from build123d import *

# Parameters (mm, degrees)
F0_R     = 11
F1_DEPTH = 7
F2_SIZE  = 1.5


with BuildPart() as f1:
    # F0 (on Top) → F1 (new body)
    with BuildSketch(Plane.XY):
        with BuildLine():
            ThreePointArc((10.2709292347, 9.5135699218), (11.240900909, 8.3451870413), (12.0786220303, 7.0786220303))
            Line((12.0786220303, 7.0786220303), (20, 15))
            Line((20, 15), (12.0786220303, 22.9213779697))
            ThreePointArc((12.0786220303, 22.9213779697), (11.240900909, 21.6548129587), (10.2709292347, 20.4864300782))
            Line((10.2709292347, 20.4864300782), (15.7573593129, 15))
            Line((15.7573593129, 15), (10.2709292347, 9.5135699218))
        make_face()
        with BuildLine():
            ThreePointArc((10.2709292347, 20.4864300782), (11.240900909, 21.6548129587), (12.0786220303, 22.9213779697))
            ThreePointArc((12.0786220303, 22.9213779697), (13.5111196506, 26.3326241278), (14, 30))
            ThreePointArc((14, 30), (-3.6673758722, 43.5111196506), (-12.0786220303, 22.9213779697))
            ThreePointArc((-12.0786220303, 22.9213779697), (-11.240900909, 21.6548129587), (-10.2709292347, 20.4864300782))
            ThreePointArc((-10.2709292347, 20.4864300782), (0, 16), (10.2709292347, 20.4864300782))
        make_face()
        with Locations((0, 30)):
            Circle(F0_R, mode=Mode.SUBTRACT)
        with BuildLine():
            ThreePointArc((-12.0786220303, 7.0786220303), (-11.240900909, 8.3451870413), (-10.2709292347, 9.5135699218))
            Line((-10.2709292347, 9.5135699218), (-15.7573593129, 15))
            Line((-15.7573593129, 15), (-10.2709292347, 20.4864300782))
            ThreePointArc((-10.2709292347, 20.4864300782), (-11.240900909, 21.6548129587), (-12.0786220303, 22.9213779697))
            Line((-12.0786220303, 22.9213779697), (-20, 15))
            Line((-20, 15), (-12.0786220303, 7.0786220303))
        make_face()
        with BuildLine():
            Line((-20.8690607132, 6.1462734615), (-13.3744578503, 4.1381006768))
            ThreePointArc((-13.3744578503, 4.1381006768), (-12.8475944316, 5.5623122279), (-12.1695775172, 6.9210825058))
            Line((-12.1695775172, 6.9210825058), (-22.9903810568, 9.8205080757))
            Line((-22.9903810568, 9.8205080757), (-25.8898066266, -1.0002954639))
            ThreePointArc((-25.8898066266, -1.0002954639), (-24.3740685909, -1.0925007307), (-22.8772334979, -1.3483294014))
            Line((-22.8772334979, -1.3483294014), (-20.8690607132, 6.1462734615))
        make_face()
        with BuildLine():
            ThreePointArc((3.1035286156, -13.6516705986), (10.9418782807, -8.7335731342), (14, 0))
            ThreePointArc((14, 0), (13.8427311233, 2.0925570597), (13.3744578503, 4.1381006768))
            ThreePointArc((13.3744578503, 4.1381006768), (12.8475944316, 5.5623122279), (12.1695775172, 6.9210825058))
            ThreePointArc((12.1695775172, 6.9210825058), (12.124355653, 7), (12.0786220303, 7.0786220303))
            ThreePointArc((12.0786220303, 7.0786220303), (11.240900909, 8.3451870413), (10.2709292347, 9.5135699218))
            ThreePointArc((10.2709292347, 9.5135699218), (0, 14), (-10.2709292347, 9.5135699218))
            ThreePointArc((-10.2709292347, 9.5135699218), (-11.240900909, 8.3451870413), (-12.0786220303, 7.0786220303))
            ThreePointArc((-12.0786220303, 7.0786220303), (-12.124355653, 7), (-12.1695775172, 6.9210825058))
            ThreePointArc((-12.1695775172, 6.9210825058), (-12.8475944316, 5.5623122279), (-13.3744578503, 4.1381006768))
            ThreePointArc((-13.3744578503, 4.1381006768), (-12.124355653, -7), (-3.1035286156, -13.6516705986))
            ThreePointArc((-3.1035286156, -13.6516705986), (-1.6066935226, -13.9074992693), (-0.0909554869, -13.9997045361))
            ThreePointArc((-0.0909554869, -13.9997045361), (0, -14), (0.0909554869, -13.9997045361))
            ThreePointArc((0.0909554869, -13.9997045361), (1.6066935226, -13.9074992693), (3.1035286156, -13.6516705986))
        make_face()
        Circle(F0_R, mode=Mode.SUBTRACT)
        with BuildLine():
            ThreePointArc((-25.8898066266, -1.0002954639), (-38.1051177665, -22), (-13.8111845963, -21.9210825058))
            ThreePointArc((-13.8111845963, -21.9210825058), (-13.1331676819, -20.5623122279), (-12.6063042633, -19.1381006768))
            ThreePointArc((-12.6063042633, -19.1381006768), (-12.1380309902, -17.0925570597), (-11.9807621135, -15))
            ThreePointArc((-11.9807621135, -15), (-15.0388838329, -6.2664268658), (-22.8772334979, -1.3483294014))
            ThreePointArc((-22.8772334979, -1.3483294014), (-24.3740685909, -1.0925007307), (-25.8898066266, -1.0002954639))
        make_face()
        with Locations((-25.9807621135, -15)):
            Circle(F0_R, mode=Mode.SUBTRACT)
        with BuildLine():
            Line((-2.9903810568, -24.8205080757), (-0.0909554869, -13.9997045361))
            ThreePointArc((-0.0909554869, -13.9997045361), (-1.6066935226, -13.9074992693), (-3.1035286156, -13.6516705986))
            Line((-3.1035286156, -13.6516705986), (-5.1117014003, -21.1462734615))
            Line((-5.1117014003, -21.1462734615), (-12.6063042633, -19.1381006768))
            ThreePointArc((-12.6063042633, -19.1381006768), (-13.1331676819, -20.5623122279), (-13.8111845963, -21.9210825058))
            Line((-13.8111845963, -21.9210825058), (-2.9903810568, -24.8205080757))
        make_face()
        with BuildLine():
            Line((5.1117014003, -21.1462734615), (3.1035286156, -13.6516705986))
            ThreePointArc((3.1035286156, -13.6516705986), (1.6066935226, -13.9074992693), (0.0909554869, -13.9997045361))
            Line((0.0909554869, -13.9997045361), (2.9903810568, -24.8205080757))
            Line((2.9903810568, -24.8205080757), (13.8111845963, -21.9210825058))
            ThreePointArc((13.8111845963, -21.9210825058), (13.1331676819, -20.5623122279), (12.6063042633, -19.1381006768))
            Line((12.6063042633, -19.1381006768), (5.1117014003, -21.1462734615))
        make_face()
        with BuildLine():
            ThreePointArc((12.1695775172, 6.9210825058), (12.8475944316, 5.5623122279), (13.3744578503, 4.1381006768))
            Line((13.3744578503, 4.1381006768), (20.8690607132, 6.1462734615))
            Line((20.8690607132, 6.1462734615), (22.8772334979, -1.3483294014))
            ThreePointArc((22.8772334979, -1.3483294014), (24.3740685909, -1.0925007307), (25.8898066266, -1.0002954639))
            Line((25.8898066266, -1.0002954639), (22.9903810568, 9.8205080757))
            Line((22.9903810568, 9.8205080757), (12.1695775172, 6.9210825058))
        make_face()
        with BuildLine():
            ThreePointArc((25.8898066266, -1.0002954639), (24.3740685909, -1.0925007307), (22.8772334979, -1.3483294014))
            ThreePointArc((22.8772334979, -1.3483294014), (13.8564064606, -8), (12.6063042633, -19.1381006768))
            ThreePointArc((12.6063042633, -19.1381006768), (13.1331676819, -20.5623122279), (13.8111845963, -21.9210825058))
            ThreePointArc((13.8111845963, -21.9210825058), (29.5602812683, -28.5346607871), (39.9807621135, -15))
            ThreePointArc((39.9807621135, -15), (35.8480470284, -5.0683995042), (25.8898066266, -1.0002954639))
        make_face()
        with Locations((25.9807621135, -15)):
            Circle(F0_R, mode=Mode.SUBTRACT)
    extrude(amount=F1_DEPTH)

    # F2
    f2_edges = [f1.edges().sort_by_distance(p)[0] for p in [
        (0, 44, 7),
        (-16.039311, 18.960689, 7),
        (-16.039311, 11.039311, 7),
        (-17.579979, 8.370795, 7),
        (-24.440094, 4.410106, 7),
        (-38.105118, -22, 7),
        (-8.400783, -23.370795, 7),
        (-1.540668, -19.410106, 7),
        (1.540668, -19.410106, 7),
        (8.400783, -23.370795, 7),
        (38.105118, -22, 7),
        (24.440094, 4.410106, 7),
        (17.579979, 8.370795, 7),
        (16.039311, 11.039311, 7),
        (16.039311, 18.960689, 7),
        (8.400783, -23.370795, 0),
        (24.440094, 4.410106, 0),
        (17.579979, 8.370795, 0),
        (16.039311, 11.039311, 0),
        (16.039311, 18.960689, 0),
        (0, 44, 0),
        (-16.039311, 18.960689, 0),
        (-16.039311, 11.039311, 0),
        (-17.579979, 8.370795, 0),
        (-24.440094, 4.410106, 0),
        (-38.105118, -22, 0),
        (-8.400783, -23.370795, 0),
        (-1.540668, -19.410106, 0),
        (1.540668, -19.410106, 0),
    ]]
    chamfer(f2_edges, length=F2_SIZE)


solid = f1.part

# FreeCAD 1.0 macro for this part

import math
import FreeCAD as App
import Part
import Sketcher
Q = App.Units.Quantity


def edges_at(feature, points):
    """Names of the edges that pass closest to the given points."""
    edges = feature.Shape.Edges
    near = lambda p: min(range(len(edges)), key=lambda i: edges[i].distToShape(Part.Vertex(*p))[0])
    return sorted({f"Edge{near(p) + 1}" for p in points})

doc = App.newDocument("Part")
params = doc.addObject("Spreadsheet::Sheet", "Params")
for row, (alias, value) in enumerate([
    ("sketch1_diameter", "22 mm"),
    ("sketch1_radius", "14 mm"),
    ("pad1_length", "7 mm"),
    ("chamfer_size", "1.5 mm"),
], start=1):
    params.set(f"A{row}", alias)
    params.set(f"B{row}", "=" + value)
    params.setAlias(f"B{row}", alias)

body = doc.addObject("PartDesign::Body", "Body")

# Sketch on XY plane
sketch1 = body.newObject("Sketcher::SketchObject", "Sketch")
sketch1.AttachmentSupport = (doc.getObject("XY_Plane"), [""])
sketch1.MapMode = "FlatFace"
sketch1.addGeometry([
    Part.LineSegment(App.Vector(12.078622, 7.078622, 0), App.Vector(20, 15, 0)),  # 0
    Part.LineSegment(App.Vector(20, 15, 0), App.Vector(12.078622, 22.921378, 0)),  # 1
    Part.ArcOfCircle(Part.Circle(App.Vector(0, 30, 0), App.Vector(0, 0, 1), 14), math.radians(-30.372243), math.radians(0)),  # 2
    Part.ArcOfCircle(Part.Circle(App.Vector(0, 30, 0), App.Vector(0, 0, 1), 14), math.radians(0), math.radians(210.372243)),  # 3
    Part.LineSegment(App.Vector(-12.078622, 22.921378, 0), App.Vector(-20, 15, 0)),  # 4
    Part.LineSegment(App.Vector(-20, 15, 0), App.Vector(-12.078622, 7.078622, 0)),  # 5
    Part.ArcOfCircle(Part.Circle(App.Vector(-0.000002, 0.000001, 0), App.Vector(0, 0, 1), 13.999998), math.radians(149.627757), math.radians(150.372243)),  # 6
    Part.LineSegment(App.Vector(-12.169578, 6.921083, 0), App.Vector(-22.990381, 9.820508, 0)),  # 7
    Part.LineSegment(App.Vector(-22.990381, 9.820508, 0), App.Vector(-25.889807, -1.000295, 0)),  # 8
    Part.ArcOfCircle(Part.Circle(App.Vector(-25.980762, -15, 0), App.Vector(0, 0, 1), 14), math.radians(89.627757), math.radians(330.372243)),  # 9
    Part.LineSegment(App.Vector(-13.811185, -21.921083, 0), App.Vector(-2.990381, -24.820508, 0)),  # 10
    Part.LineSegment(App.Vector(-2.990381, -24.820508, 0), App.Vector(-0.090955, -13.999705, 0)),  # 11
    Part.ArcOfCircle(Part.Circle(App.Vector(0, -0.000002, 0), App.Vector(0, 0, 1), 13.999998), math.radians(-90.372243), math.radians(-89.627757)),  # 12
    Part.LineSegment(App.Vector(0.090955, -13.999705, 0), App.Vector(2.990381, -24.820508, 0)),  # 13
    Part.LineSegment(App.Vector(2.990381, -24.820508, 0), App.Vector(13.811185, -21.921083, 0)),  # 14
    Part.ArcOfCircle(Part.Circle(App.Vector(25.980762, -15, 0), App.Vector(0, 0, 1), 14), math.radians(-150.372243), math.radians(0)),  # 15
    Part.ArcOfCircle(Part.Circle(App.Vector(25.980762, -15, 0), App.Vector(0, 0, 1), 14), math.radians(0), math.radians(90.372243)),  # 16
    Part.LineSegment(App.Vector(25.889807, -1.000295, 0), App.Vector(22.990381, 9.820508, 0)),  # 17
    Part.LineSegment(App.Vector(22.990381, 9.820508, 0), App.Vector(12.169578, 6.921083, 0)),  # 18
    Part.ArcOfCircle(Part.Circle(App.Vector(0.000002, 0.000001, 0), App.Vector(0, 0, 1), 13.999998), math.radians(29.627757), math.radians(30.372243)),  # 19
    Part.Circle(App.Vector(-25.980762, -15, 0), App.Vector(0, 0, 1), 11),  # 20
    Part.ArcOfCircle(Part.Circle(App.Vector(0, 0, 0), App.Vector(0, 0, 1), 14), math.radians(162.807763), math.radians(257.192237)),  # 21
    Part.LineSegment(App.Vector(-3.103529, -13.651671, 0), App.Vector(-5.111701, -21.146273, 0)),  # 22
    Part.LineSegment(App.Vector(-5.111701, -21.146273, 0), App.Vector(-12.606304, -19.138101, 0)),  # 23
    Part.ArcOfCircle(Part.Circle(App.Vector(-25.980762, -15, 0), App.Vector(0, 0, 1), 14), math.radians(-17.192237), math.radians(0)),  # 24
    Part.ArcOfCircle(Part.Circle(App.Vector(-25.980762, -15, 0), App.Vector(0, 0, 1), 14), math.radians(0), math.radians(77.192237)),  # 25
    Part.LineSegment(App.Vector(-22.877233, -1.348329, 0), App.Vector(-20.869061, 6.146273, 0)),  # 26
    Part.LineSegment(App.Vector(-20.869061, 6.146273, 0), App.Vector(-13.374458, 4.138101, 0)),  # 27
    Part.Circle(App.Vector(25.980762, -15, 0), App.Vector(0, 0, 1), 11),  # 28
    Part.LineSegment(App.Vector(12.606304, -19.138101, 0), App.Vector(5.111701, -21.146273, 0)),  # 29
    Part.LineSegment(App.Vector(5.111701, -21.146273, 0), App.Vector(3.103529, -13.651671, 0)),  # 30
    Part.ArcOfCircle(Part.Circle(App.Vector(0, 0, 0), App.Vector(0, 0, 1), 14), math.radians(-77.192237), math.radians(0)),  # 31
    Part.ArcOfCircle(Part.Circle(App.Vector(0, 0, 0), App.Vector(0, 0, 1), 14), math.radians(0), math.radians(17.192237)),  # 32
    Part.LineSegment(App.Vector(13.374458, 4.138101, 0), App.Vector(20.869061, 6.146273, 0)),  # 33
    Part.LineSegment(App.Vector(20.869061, 6.146273, 0), App.Vector(22.877233, -1.348329, 0)),  # 34
    Part.ArcOfCircle(Part.Circle(App.Vector(25.980762, -15, 0), App.Vector(0, 0, 1), 14), math.radians(102.807763), math.radians(197.192237)),  # 35
    Part.Circle(App.Vector(0, 0, 0), App.Vector(0, 0, 1), 11),  # 36
    Part.LineSegment(App.Vector(-10.270929, 9.51357, 0), App.Vector(-15.757359, 15, 0)),  # 37
    Part.LineSegment(App.Vector(-15.757359, 15, 0), App.Vector(-10.270929, 20.48643, 0)),  # 38
    Part.ArcOfCircle(Part.Circle(App.Vector(0, 30, 0), App.Vector(0, 0, 1), 14), math.radians(-137.192237), math.radians(-42.807763)),  # 39
    Part.LineSegment(App.Vector(10.270929, 20.48643, 0), App.Vector(15.757359, 15, 0)),  # 40
    Part.LineSegment(App.Vector(15.757359, 15, 0), App.Vector(10.270929, 9.51357, 0)),  # 41
    Part.ArcOfCircle(Part.Circle(App.Vector(0, 0, 0), App.Vector(0, 0, 1), 14), math.radians(42.807763), math.radians(137.192237)),  # 42
    Part.Circle(App.Vector(0, 30, 0), App.Vector(0, 0, 1), 11),  # 43
], False)
sketch1.addConstraint([
    Sketcher.Constraint("Coincident", 0, 2, 1, 1),
    Sketcher.Constraint("Coincident", 1, 2, 2, 1),
    Sketcher.Constraint("Tangent", 2, 2, 3, 1),
    Sketcher.Constraint("Coincident", 3, 2, 4, 1),
    Sketcher.Constraint("Coincident", 4, 2, 5, 1),
    Sketcher.Constraint("Coincident", 5, 2, 6, 1),
    Sketcher.Constraint("Coincident", 6, 2, 7, 1),
    Sketcher.Constraint("Coincident", 7, 2, 8, 1),
    Sketcher.Constraint("Coincident", 8, 2, 9, 1),
    Sketcher.Constraint("Coincident", 9, 2, 10, 1),
    Sketcher.Constraint("Coincident", 10, 2, 11, 1),
    Sketcher.Constraint("Coincident", 11, 2, 12, 1),
    Sketcher.Constraint("Coincident", 12, 2, 13, 1),
    Sketcher.Constraint("Coincident", 13, 2, 14, 1),
    Sketcher.Constraint("Coincident", 14, 2, 15, 1),
    Sketcher.Constraint("Tangent", 15, 2, 16, 1),
    Sketcher.Constraint("Coincident", 16, 2, 17, 1),
    Sketcher.Constraint("Coincident", 17, 2, 18, 1),
    Sketcher.Constraint("Coincident", 18, 2, 19, 1),
    Sketcher.Constraint("Coincident", 19, 2, 0, 1),
    Sketcher.Constraint("Coincident", 21, 2, 22, 1),
    Sketcher.Constraint("Coincident", 22, 2, 23, 1),
    Sketcher.Constraint("Coincident", 23, 2, 24, 1),
    Sketcher.Constraint("Tangent", 24, 2, 25, 1),
    Sketcher.Constraint("Coincident", 25, 2, 26, 1),
    Sketcher.Constraint("Coincident", 26, 2, 27, 1),
    Sketcher.Constraint("Coincident", 27, 2, 21, 1),
    Sketcher.Constraint("Coincident", 29, 2, 30, 1),
    Sketcher.Constraint("Coincident", 30, 2, 31, 1),
    Sketcher.Constraint("Tangent", 31, 2, 32, 1),
    Sketcher.Constraint("Coincident", 32, 2, 33, 1),
    Sketcher.Constraint("Coincident", 33, 2, 34, 1),
    Sketcher.Constraint("Coincident", 34, 2, 35, 1),
    Sketcher.Constraint("Coincident", 35, 2, 29, 1),
    Sketcher.Constraint("Coincident", 37, 2, 38, 1),
    Sketcher.Constraint("Coincident", 38, 2, 39, 1),
    Sketcher.Constraint("Coincident", 39, 2, 40, 1),
    Sketcher.Constraint("Coincident", 40, 2, 41, 1),
    Sketcher.Constraint("Coincident", 41, 2, 42, 1),
    Sketcher.Constraint("Coincident", 42, 2, 37, 1),
    Sketcher.Constraint("Coincident", 6, 3, -1, 1),
    Sketcher.Constraint("Coincident", 12, 3, -1, 1),
    Sketcher.Constraint("Coincident", 19, 3, -1, 1),
    Sketcher.Constraint("Coincident", 21, 3, -1, 1),
    Sketcher.Constraint("Coincident", 31, 3, -1, 1),
    Sketcher.Constraint("Coincident", 36, 3, -1, 1),
    Sketcher.Constraint("Coincident", 42, 3, -1, 1),
    Sketcher.Constraint("Coincident", 20, 3, 9, 3),
    Sketcher.Constraint("Coincident", 24, 3, 9, 3),
    Sketcher.Constraint("Coincident", 28, 3, 15, 3),
    Sketcher.Constraint("Coincident", 35, 3, 15, 3),
    Sketcher.Constraint("Coincident", 39, 3, 2, 3),
    Sketcher.Constraint("Coincident", 43, 3, 2, 3),
    Sketcher.Constraint("Equal", 2, 3),
    Sketcher.Constraint("Equal", 3, 9),
    Sketcher.Constraint("Equal", 6, 12),
    Sketcher.Constraint("Equal", 9, 15),
    Sketcher.Constraint("Equal", 15, 16),
    Sketcher.Constraint("Equal", 12, 19),
    Sketcher.Constraint("Equal", 16, 21),
    Sketcher.Constraint("Equal", 21, 24),
    Sketcher.Constraint("Equal", 24, 25),
    Sketcher.Constraint("Equal", 20, 28),
    Sketcher.Constraint("Equal", 25, 31),
    Sketcher.Constraint("Equal", 31, 32),
    Sketcher.Constraint("Equal", 32, 35),
    Sketcher.Constraint("Equal", 28, 36),
    Sketcher.Constraint("Equal", 35, 39),
    Sketcher.Constraint("Equal", 39, 42),
    Sketcher.Constraint("Equal", 36, 43),
    Sketcher.Constraint("Symmetric", 9, 3, 15, 3, -2),
    Sketcher.Constraint("Symmetric", 1, 2, 3, 2, -2),
    Sketcher.Constraint("Symmetric", 0, 2, 4, 2, -2),
    Sketcher.Constraint("Symmetric", 10, 2, 13, 2, -2),
    Sketcher.Constraint("Symmetric", 7, 2, 17, 2, -2),
    Sketcher.Constraint("Symmetric", 22, 2, 29, 2, -2),
    Sketcher.Constraint("Symmetric", 26, 2, 33, 2, -2),
    Sketcher.Constraint("Symmetric", 37, 2, 40, 2, -2),
    Sketcher.Constraint("PointOnObject", 31, 2, -1),
    Sketcher.Constraint("Perpendicular", 0, 1),
    Sketcher.Constraint("Perpendicular", 1, 4),
    Sketcher.Constraint("Perpendicular", 4, 5),
    Sketcher.Constraint("Perpendicular", 7, 8),
    Sketcher.Constraint("Perpendicular", 8, 10),
    Sketcher.Constraint("Perpendicular", 10, 11),
    Sketcher.Constraint("Perpendicular", 13, 14),
    Sketcher.Constraint("Perpendicular", 14, 17),
    Sketcher.Constraint("Perpendicular", 17, 18),
    Sketcher.Constraint("Parallel", 11, 22),
    Sketcher.Constraint("Perpendicular", 22, 23),
    Sketcher.Constraint("Perpendicular", 23, 26),
    Sketcher.Constraint("Perpendicular", 26, 27),
    Sketcher.Constraint("Parallel", 18, 29),
    Sketcher.Constraint("Perpendicular", 29, 30),
    Sketcher.Constraint("Perpendicular", 30, 33),
    Sketcher.Constraint("Perpendicular", 33, 34),
    Sketcher.Constraint("Parallel", 5, 37),
    Sketcher.Constraint("Perpendicular", 37, 38),
    Sketcher.Constraint("Perpendicular", 38, 40),
    Sketcher.Constraint("Perpendicular", 40, 41),
    Sketcher.Constraint("Horizontal", 43, 3, 2, 2),
    Sketcher.Constraint("Horizontal", 11, 2, 12, 2),
    Sketcher.Constraint("Horizontal", 35, 3, 15, 2),
    Sketcher.Constraint("Horizontal", 15, 2, 24, 2),
    Sketcher.Constraint("Horizontal", 4, 2, 37, 2),
    Sketcher.Constraint("Vertical", 3, 2, 5, 2),
    Sketcher.Constraint("Vertical", 39, 2, 41, 2),
    Sketcher.Constraint("Equal", 5, 7),
    Sketcher.Constraint("Equal", 7, 8),
    Sketcher.Constraint("Equal", 8, 10),
    Sketcher.Constraint("Equal", 10, 11),
    Sketcher.Constraint("Equal", 22, 23),
    Sketcher.Constraint("Equal", 23, 26),
    Sketcher.Constraint("Equal", 26, 27),
    Sketcher.Constraint("Equal", 34, 37),
    Sketcher.Constraint("Diameter", 20, Q("22 mm")),
    Sketcher.Constraint("Radius", 2, Q("14 mm")),
    Sketcher.Constraint("Angle", 7, Q("165 deg")),
    Sketcher.Constraint("DistanceY", -1, 1, 2, 3, Q("30 mm")),
    Sketcher.Constraint("DistanceY", 9, 3, -1, 1, Q("15 mm")),
    Sketcher.Constraint("DistanceX", -1, 1, 0, 2, Q("20 mm")),
    Sketcher.Constraint("DistanceX", 22, 2, -1, 1, Q("5.111701 mm")),
    Sketcher.Constraint("DistanceY", 23, 2, -1, 1, Q("19.138101 mm")),
])
sketch1.setExpression("Constraints[115]", "Params.sketch1_diameter")
sketch1.setExpression("Constraints[116]", "Params.sketch1_radius")
pad1 = body.newObject("PartDesign::Pad", "Pad")
pad1.Profile = sketch1
pad1.setExpression("Length", "Params.pad1_length")
doc.recompute()

chamfer = body.newObject("PartDesign::Chamfer", "Chamfer")
chamfer.Base = (pad1, edges_at(pad1, [
    (-3.667, 43.511, 7),
    (-16.039, 18.961, 7),
    (-16.039, 11.039, 7),
    (-17.58, 8.371, 7),
    (-24.44, 4.41, 7),
    (-38.105, -22, 7),
    (-8.401, -23.371, 7),
    (-1.541, -19.41, 7),
    (1.541, -19.41, 7),
    (8.401, -23.371, 7),
    (29.56, -28.535, 7),
    (24.44, 4.41, 7),
    (17.58, 8.371, 7),
    (16.039, 11.039, 7),
    (16.039, 18.961, 7),
    (8.401, -23.371, 0),
    (24.44, 4.41, 0),
    (17.58, 8.371, 0),
    (16.039, 11.039, 0),
    (16.039, 18.961, 0),
    (-3.667, 43.511, 0),
    (-16.039, 18.961, 0),
    (-16.039, 11.039, 0),
    (-17.58, 8.371, 0),
    (-24.44, 4.41, 0),
    (-38.105, -22, 0),
    (-8.401, -23.371, 0),
    (-1.541, -19.41, 0),
    (1.541, -19.41, 0),
]))
chamfer.setExpression("Size", "Params.chamfer_size")

doc.recompute()
